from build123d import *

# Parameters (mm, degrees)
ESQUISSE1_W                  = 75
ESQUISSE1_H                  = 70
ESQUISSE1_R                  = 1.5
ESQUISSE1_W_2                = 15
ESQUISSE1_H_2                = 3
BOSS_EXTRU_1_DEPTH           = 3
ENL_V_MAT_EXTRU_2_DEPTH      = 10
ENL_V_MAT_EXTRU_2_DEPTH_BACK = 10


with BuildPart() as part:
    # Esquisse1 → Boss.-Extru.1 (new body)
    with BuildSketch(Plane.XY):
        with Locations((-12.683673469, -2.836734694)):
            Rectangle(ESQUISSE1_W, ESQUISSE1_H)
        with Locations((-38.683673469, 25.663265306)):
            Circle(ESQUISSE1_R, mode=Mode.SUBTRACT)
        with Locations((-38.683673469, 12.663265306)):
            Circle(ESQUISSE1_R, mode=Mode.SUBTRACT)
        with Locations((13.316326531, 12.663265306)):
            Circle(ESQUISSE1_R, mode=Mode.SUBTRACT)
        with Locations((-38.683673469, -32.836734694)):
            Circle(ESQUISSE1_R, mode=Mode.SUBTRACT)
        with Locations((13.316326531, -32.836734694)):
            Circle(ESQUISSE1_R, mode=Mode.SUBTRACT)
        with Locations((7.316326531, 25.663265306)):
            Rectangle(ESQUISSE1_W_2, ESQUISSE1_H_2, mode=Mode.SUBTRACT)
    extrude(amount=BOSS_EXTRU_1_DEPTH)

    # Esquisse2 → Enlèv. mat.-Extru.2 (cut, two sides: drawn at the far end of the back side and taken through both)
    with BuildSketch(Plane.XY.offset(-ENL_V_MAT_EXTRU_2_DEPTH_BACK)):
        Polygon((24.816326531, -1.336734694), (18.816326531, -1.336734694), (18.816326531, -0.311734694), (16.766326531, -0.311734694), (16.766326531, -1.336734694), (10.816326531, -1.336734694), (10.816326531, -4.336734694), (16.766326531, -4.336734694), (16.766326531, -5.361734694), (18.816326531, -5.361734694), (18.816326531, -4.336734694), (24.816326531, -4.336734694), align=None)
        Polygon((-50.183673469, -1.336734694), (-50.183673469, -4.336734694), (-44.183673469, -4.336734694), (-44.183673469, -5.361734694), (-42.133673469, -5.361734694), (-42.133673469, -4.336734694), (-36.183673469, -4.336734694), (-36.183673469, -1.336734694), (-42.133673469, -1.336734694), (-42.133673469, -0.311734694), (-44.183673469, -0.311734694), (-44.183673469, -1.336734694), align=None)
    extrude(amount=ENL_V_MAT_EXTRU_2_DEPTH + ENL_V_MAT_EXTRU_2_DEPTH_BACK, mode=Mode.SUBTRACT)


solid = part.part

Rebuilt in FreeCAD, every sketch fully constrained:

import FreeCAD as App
import Part
import Sketcher
Q = App.Units.Quantity


def add_polygon(sketch, points):
    """Adds a closed chain of lines whose ends are joined by coincident constraints."""
    first, n = sketch.GeometryCount, len(points)
    for a, b in zip(points, points[1:] + points[:1]):
        sketch.addGeometry(Part.LineSegment(App.Vector(*a, 0), App.Vector(*b, 0)), False)
    for i in range(n):
        sketch.addConstraint(Sketcher.Constraint("Coincident", first + i, 2, first + (i + 1) % n, 1))

doc = App.newDocument("Part")
body = doc.addObject("PartDesign::Body", "Body")

sketch1 = body.newObject("Sketcher::SketchObject", "Sketch")
sketch1.AttachmentSupport = (doc.getObject("XY_Plane"), [""])
sketch1.MapMode = "FlatFace"
add_polygon(sketch1, [(-50.2, 32.2), (-50.2, -37.8), (24.8, -37.8), (24.8, 32.2)])
sketch1.addGeometry(Part.Circle(App.Vector(-38.7, -32.8, 0), App.Vector(0, 0, 1), 1.5), False)
sketch1.addGeometry(Part.Circle(App.Vector(13.3, -32.8, 0), App.Vector(0, 0, 1), 1.5), False)
sketch1.addGeometry(Part.Circle(App.Vector(-38.7, 12.7, 0), App.Vector(0, 0, 1), 1.5), False)
sketch1.addGeometry(Part.Circle(App.Vector(-38.7, 25.7, 0), App.Vector(0, 0, 1), 1.5), False)
sketch1.addGeometry(Part.Circle(App.Vector(13.3, 12.7, 0), App.Vector(0, 0, 1), 1.5), False)
add_polygon(sketch1, [(14.8, 24.2), (-0.2, 24.2), (-0.2, 27.2), (14.8, 27.2)])
sketch1.addConstraint(Sketcher.Constraint("Vertical", 0))
sketch1.addConstraint(Sketcher.Constraint("Horizontal", 1))
sketch1.addConstraint(Sketcher.Constraint("Vertical", 2))
sketch1.addConstraint(Sketcher.Constraint("Horizontal", 3))
sketch1.addConstraint(Sketcher.Constraint("Horizontal", 9))
sketch1.addConstraint(Sketcher.Constraint("Vertical", 10))
sketch1.addConstraint(Sketcher.Constraint("Horizontal", 11))
sketch1.addConstraint(Sketcher.Constraint("Vertical", 12))
sketch1.addConstraint(Sketcher.Constraint("Equal", 4, 5))
sketch1.addConstraint(Sketcher.Constraint("Equal", 5, 6))
sketch1.addConstraint(Sketcher.Constraint("Equal", 6, 7))
sketch1.addConstraint(Sketcher.Constraint("Equal", 7, 8))
sketch1.addConstraint(Sketcher.Constraint("Horizontal", 4, 3, 5, 3))
sketch1.addConstraint(Sketcher.Constraint("Horizontal", 6, 3, 8, 3))
sketch1.addConstraint(Sketcher.Constraint("Vertical", 4, 3, 6, 3))
sketch1.addConstraint(Sketcher.Constraint("Vertical", 6, 3, 7, 3))
sketch1.addConstraint(Sketcher.Constraint("Vertical", 5, 3, 8, 3))
sketch1.addConstraint(Sketcher.Constraint("Diameter", 4, Q("3 mm")))
sketch1.addConstraint(Sketcher.Constraint("DistanceX", 1, 1, 1, 2, Q("75 mm")))
sketch1.addConstraint(Sketcher.Constraint("DistanceX", 9, 2, 9, 1, Q("15 mm")))
sketch1.addConstraint(Sketcher.Constraint("DistanceY", 0, 2, 0, 1, Q("70 mm")))
sketch1.addConstraint(Sketcher.Constraint("DistanceY", 10, 1, 10, 2, Q("3 mm")))
sketch1.addConstraint(Sketcher.Constraint("DistanceX", 4, 3, 5, 3, Q("52 mm")))
sketch1.addConstraint(Sketcher.Constraint("DistanceY", 6, 3, 7, 3, Q("13 mm")))
sketch1.addConstraint(Sketcher.Constraint("DistanceY", 0, 2, 4, 3, Q("5 mm")))
sketch1.addConstraint(Sketcher.Constraint("DistanceX", 9, 2, 2, 2, Q("25 mm")))
sketch1.addConstraint(Sketcher.Constraint("DistanceY", 9, 2, 2, 2, Q("8 mm")))
sketch1.addConstraint(Sketcher.Constraint("DistanceY", 4, 3, 6, 3, Q("45.5 mm")))
sketch1.addConstraint(Sketcher.Constraint("DistanceX", 0, 2, 4, 3, Q("11.5 mm")))
sketch1.addConstraint(Sketcher.Constraint("DistanceX", 4, 3, -1, 1, Q("38.683673 mm")))
sketch1.addConstraint(Sketcher.Constraint("DistanceY", 4, 3, -1, 1, Q("32.836735 mm")))
pad1 = body.newObject("PartDesign::Pad", "Pad")
pad1.Profile = sketch1
pad1.Length = 3

sketch2 = body.newObject("Sketcher::SketchObject", "Sketch001")
sketch2.AttachmentSupport = (doc.getObject("XY_Plane"), [""])
sketch2.MapMode = "FlatFace"
add_polygon(sketch2, [(24.8, -1.3), (18.8, -1.3), (18.8, -0.3), (16.8, -0.3), (16.8, -1.3), (10.8, -1.3), (10.8, -4.3), (16.8, -4.3), (16.8, -5.4), (18.8, -5.4), (18.8, -4.3), (24.8, -4.3)])
add_polygon(sketch2, [(-50.2, -1.3), (-50.2, -4.3), (-44.2, -4.3), (-44.2, -5.4), (-42.1, -5.4), (-42.1, -4.3), (-36.2, -4.3), (-36.2, -1.3), (-42.1, -1.3), (-42.1, -0.3), (-44.2, -0.3), (-44.2, -1.3)])
sketch2.addConstraint(Sketcher.Constraint("Horizontal", 0))
sketch2.addConstraint(Sketcher.Constraint("Vertical", 1))
sketch2.addConstraint(Sketcher.Constraint("Horizontal", 2))
sketch2.addConstraint(Sketcher.Constraint("Vertical", 3))
sketch2.addConstraint(Sketcher.Constraint("Horizontal", 4))
sketch2.addConstraint(Sketcher.Constraint("Vertical", 5))
sketch2.addConstraint(Sketcher.Constraint("Horizontal", 6))
sketch2.addConstraint(Sketcher.Constraint("Vertical", 7))
sketch2.addConstraint(Sketcher.Constraint("Horizontal", 8))
sketch2.addConstraint(Sketcher.Constraint("Vertical", 9))
sketch2.addConstraint(Sketcher.Constraint("Horizontal", 10))
sketch2.addConstraint(Sketcher.Constraint("Vertical", 11))
sketch2.addConstraint(Sketcher.Constraint("Vertical", 12))
sketch2.addConstraint(Sketcher.Constraint("Horizontal", 13))
sketch2.addConstraint(Sketcher.Constraint("Vertical", 14))
sketch2.addConstraint(Sketcher.Constraint("Horizontal", 15))
sketch2.addConstraint(Sketcher.Constraint("Vertical", 16))
sketch2.addConstraint(Sketcher.Constraint("Horizontal", 17))
sketch2.addConstraint(Sketcher.Constraint("Vertical", 18))
sketch2.addConstraint(Sketcher.Constraint("Horizontal", 19))
sketch2.addConstraint(Sketcher.Constraint("Vertical", 20))
sketch2.addConstraint(Sketcher.Constraint("Horizontal", 21))
sketch2.addConstraint(Sketcher.Constraint("Vertical", 22))
sketch2.addConstraint(Sketcher.Constraint("Horizontal", 23))
sketch2.addConstraint(Sketcher.Constraint("Horizontal", 0, 2, 3, 2))
sketch2.addConstraint(Sketcher.Constraint("Horizontal", 6, 2, 9, 2))
sketch2.addConstraint(Sketcher.Constraint("Horizontal", 10, 2, 12, 2))
sketch2.addConstraint(Sketcher.Constraint("Horizontal", 8, 2, 14, 2))
sketch2.addConstraint(Sketcher.Constraint("Horizontal", 13, 2, 16, 2))
sketch2.addConstraint(Sketcher.Constraint("Horizontal", 11, 2, 18, 2))
sketch2.addConstraint(Sketcher.Constraint("Horizontal", 2, 2, 20, 2))
sketch2.addConstraint(Sketcher.Constraint("Horizontal", 19, 2, 22, 2))
sketch2.addConstraint(Sketcher.Constraint("Vertical", 3, 2, 6, 2))
sketch2.addConstraint(Sketcher.Constraint("Vertical", 1, 2, 8, 2))
sketch2.addConstraint(Sketcher.Constraint("Vertical", 16, 2, 19, 2))
sketch2.addConstraint(Sketcher.Constraint("Vertical", 14, 2, 21, 2))
sketch2.addConstraint(Sketcher.Constraint("Equal", 10, 13))
sketch2.addConstraint(Sketcher.Constraint("Equal", 8, 15))
sketch2.addConstraint(Sketcher.Constraint("Equal", 6, 17))
sketch2.addConstraint(Sketcher.Constraint("Equal", 3, 7))
sketch2.addConstraint(Sketcher.Constraint("DistanceX", 0, 2, 0, 1, Q("6 mm")))
sketch2.addConstraint(Sketcher.Constraint("DistanceY", 5, 2, 5, 1, Q("3 mm")))
sketch2.addConstraint(Sketcher.Constraint("DistanceX", 4, 2, 0, 2, Q("8 mm")))
sketch2.addConstraint(Sketcher.Constraint("DistanceX", 12, 2, 5, 2, Q("61 mm")))
sketch2.addConstraint(Sketcher.Constraint("DistanceX", 2, 2, 2, 1, Q("2.05 mm")))
sketch2.addConstraint(Sketcher.Constraint("DistanceY", 1, 1, 1, 2, Q("1.025 mm")))
sketch2.addConstraint(Sketcher.Constraint("DistanceX", -1, 1, 0, 2, Q("18.816327 mm")))
sketch2.addConstraint(Sketcher.Constraint("DistanceY", 0, 2, -1, 1, Q("1.336735 mm")))
pocket1 = body.newObject("PartDesign::Pocket", "Pocket")
pocket1.Profile = sketch2
pocket1.Type = "ThroughAll"
pocket1.Midplane = True

doc.recompute()
